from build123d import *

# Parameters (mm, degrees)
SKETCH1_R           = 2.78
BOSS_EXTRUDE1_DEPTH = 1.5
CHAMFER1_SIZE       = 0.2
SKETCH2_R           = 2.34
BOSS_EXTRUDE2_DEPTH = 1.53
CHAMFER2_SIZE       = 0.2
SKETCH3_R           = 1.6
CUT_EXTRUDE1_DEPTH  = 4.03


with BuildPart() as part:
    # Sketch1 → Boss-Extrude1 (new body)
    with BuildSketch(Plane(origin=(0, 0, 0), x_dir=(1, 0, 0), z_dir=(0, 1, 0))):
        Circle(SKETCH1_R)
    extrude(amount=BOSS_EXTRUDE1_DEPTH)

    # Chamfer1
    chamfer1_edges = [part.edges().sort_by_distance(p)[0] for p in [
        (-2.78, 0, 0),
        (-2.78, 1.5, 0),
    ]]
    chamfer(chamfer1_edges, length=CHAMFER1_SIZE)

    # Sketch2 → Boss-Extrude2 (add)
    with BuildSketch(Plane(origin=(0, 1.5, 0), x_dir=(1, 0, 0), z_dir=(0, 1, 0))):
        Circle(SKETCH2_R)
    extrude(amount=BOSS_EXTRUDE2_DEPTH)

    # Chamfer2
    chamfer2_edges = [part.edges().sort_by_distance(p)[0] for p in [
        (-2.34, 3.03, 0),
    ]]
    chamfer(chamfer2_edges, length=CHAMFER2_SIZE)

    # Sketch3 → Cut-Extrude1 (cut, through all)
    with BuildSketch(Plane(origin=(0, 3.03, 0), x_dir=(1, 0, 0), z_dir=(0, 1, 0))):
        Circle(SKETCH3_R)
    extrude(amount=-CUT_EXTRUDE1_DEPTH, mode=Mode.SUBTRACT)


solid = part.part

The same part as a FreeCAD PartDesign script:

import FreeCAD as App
import Part
import Sketcher


def edges_at(feature, points):
    """Names of the edges that pass closest to the given points."""
    edges = feature.Shape.Edges
    near = lambda p: min(range(len(edges)), key=lambda i: edges[i].distToShape(Part.Vertex(*p))[0])
    return sorted({f"Edge{near(p) + 1}" for p in points})

doc = App.newDocument("Part")
body = doc.addObject("PartDesign::Body", "Body")

sketch1 = body.newObject("Sketcher::SketchObject", "Sketch")
sketch1.AttachmentSupport = (doc.getObject("XZ_Plane"), [""])
sketch1.MapMode = "FlatFace"
sketch1.addGeometry(Part.Circle(App.Vector(0, 0, 0), App.Vector(0, 0, 1), 2.8), False)
sketch1.addConstraint([
    Sketcher.Constraint("Coincident", 0, 3, -1, 1),
    Sketcher.Constraint("Diameter", 0, 5.56),
])
pad1 = body.newObject("PartDesign::Pad", "Pad")
pad1.Profile = sketch1
pad1.Length = 1.5
pad1.Reversed = True
doc.recompute()

chamfer = body.newObject("PartDesign::Chamfer", "Chamfer")
chamfer.Base = (pad1, edges_at(pad1, [(-2.78, 0, 0), (-2.78, 1.5, 0)]))
chamfer.Size = 0.2

sketch2 = body.newObject("Sketcher::SketchObject", "Sketch001")
sketch2.AttachmentSupport = (doc.getObject("XZ_Plane"), [""])
sketch2.MapMode = "FlatFace"
sketch2.AttachmentOffset = App.Placement(App.Vector(0, 0, -1.5), App.Rotation())
sketch2.addGeometry(Part.Circle(App.Vector(0, 0, 0), App.Vector(0, 0, 1), 2.3), False)
sketch2.addConstraint([
    Sketcher.Constraint("Coincident", 0, 3, -1, 1),
    Sketcher.Constraint("Diameter", 0, 4.68),
])
pad2 = body.newObject("PartDesign::Pad", "Pad001")
pad2.Profile = sketch2
pad2.Length = 1.53
pad2.Reversed = True
doc.recompute()

chamfer2 = body.newObject("PartDesign::Chamfer", "Chamfer001")
chamfer2.Base = (pad2, edges_at(pad2, [(-2.34, 3.03, 0)]))
chamfer2.Size = 0.2

sketch3 = body.newObject("Sketcher::SketchObject", "Sketch002")
sketch3.AttachmentSupport = (doc.getObject("XZ_Plane"), [""])
sketch3.MapMode = "FlatFace"
sketch3.AttachmentOffset = App.Placement(App.Vector(0, 0, -3.03), App.Rotation())
sketch3.addGeometry(Part.Circle(App.Vector(0, 0, 0), App.Vector(0, 0, 1), 1.6), False)
sketch3.addConstraint([
    Sketcher.Constraint("Coincident", 0, 3, -1, 1),
    Sketcher.Constraint("Diameter", 0, 3.2),
])
pocket1 = body.newObject("PartDesign::Pocket", "Pocket")
pocket1.Profile = sketch3
pocket1.Type = "ThroughAll"
pocket1.Reversed = True

doc.recompute()
